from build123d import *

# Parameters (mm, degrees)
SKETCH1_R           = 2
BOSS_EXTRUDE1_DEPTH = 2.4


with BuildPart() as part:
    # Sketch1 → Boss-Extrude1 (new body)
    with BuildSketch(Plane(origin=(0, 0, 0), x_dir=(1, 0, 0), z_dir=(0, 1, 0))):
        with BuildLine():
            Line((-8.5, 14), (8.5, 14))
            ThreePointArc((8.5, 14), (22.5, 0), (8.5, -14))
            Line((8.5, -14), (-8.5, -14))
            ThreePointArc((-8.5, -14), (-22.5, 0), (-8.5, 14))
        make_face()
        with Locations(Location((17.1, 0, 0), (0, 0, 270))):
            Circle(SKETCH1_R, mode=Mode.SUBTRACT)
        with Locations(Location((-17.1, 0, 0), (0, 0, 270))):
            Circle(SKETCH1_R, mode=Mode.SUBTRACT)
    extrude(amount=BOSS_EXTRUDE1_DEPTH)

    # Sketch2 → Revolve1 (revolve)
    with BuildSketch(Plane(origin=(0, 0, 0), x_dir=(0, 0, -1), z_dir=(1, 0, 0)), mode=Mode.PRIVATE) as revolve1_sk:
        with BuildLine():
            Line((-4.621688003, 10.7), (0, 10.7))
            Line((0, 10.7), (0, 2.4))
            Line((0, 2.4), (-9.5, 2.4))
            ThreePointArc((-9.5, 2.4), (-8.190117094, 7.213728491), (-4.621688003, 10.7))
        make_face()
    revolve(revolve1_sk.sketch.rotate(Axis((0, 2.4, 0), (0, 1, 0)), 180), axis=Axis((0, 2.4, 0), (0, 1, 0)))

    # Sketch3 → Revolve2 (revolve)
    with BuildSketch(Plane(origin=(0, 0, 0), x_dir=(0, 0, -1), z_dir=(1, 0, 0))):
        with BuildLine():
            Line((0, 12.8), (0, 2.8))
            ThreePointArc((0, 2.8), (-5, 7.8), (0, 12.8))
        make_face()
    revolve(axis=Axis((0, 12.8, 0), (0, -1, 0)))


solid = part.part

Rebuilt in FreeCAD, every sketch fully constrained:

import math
import FreeCAD as App
import Part
import Sketcher
from FreeCAD import Vector
Q = App.Units.Quantity

doc = App.newDocument("Part")
body = doc.addObject("PartDesign::Body", "Body")

# Sketch on XZ plane
sketch1 = body.newObject("Sketcher::SketchObject", "Sketch")
sketch1.AttachmentSupport = (doc.getObject("XZ_Plane"), [""])
sketch1.MapMode = "FlatFace"
sketch1.addGeometry([
    Part.LineSegment(Vector(8.5, -14, 0), Vector(-8.5, -14, 0)),  # 0
    Part.ArcOfCircle(Part.Circle(Vector(-8.5, 0, 0), Vector(0, 0, 1), 14), math.radians(90), math.radians(270)),  # 1
    Part.LineSegment(Vector(-8.5, 14, 0), Vector(8.5, 14, 0)),  # 2
    Part.ArcOfCircle(Part.Circle(Vector(8.5, 0, 0), Vector(0, 0, 1), 14), math.radians(-90), math.radians(90)),  # 3
    Part.Circle(Vector(17.1, 0, 0), Vector(0, 0, 1), 2),  # 4
    Part.Circle(Vector(-17.1, 0, 0), Vector(0, 0, 1), 2),  # 5
], False)
sketch1.addConstraint([
    Sketcher.Constraint("Tangent", 0, 2, 1, 2),
    Sketcher.Constraint("Tangent", 1, 1, 2, 1),
    Sketcher.Constraint("Tangent", 2, 2, 3, 2),
    Sketcher.Constraint("Tangent", 3, 1, 0, 1),
    Sketcher.Constraint("Horizontal", 0),
    Sketcher.Constraint("Horizontal", 2),
    Sketcher.Constraint("Equal", 4, 5),
    Sketcher.Constraint("Symmetric", 1, 3, 3, 3, -1, 1),
    Sketcher.Constraint("Symmetric", 4, 3, 5, 3, -1, 1),
    Sketcher.Constraint("PointOnObject", 4, 3, -1),
    Sketcher.Constraint("Diameter", 4, Q("4 mm")),
    Sketcher.Constraint("Radius", 1, Q("14 mm")),
    Sketcher.Constraint("DistanceX", 0, 2, 0, 1, Q("17 mm")),
    Sketcher.Constraint("DistanceX", -1, 1, 4, 3, Q("17.1 mm")),
])
pad1 = body.newObject("PartDesign::Pad", "Pad")
pad1.Profile = sketch1
pad1.Length = 2.4
pad1.Reversed = True

# Sketch on YZ plane
sketch2 = body.newObject("Sketcher::SketchObject", "Sketch001")
sketch2.AttachmentSupport = (doc.getObject("YZ_Plane"), [""])
sketch2.MapMode = "FlatFace"
sketch2.addGeometry([
    Part.LineSegment(Vector(10.7, 0, 0), Vector(10.7, 4.621688, 0)),
    Part.ArcOfCircle(Part.Circle(Vector(2.4, 0, 0), Vector(0, 0, 1), 9.5), math.radians(29.110367), math.radians(90)),
    Part.LineSegment(Vector(2.4, 9.5, 0), Vector(2.4, 0, 0)),
    Part.LineSegment(Vector(2.4, 0, 0), Vector(10.7, 0, 0)),
], False)
sketch2.addConstraint([
    Sketcher.Constraint("Coincident", 0, 2, 1, 1),
    Sketcher.Constraint("Coincident", 1, 2, 2, 1),
    Sketcher.Constraint("Coincident", 2, 2, 3, 1),
    Sketcher.Constraint("Coincident", 3, 2, 0, 1),
    Sketcher.Constraint("Vertical", 0),
    Sketcher.Constraint("Vertical", 2),
    Sketcher.Constraint("Horizontal", 3),
    Sketcher.Constraint("Coincident", 2, 2, 1, 3),
    Sketcher.Constraint("PointOnObject", 1, 3, -1),
    Sketcher.Constraint("Radius", 1, Q("9.5 mm")),
    Sketcher.Constraint("DistanceX", 3, 1, 3, 2, Q("8.3 mm")),
    Sketcher.Constraint("DistanceX", -1, 1, 1, 3, Q("2.4 mm")),
])
revolution = body.newObject("PartDesign::Revolution", "Revolution")
revolution.Profile = sketch2
revolution.ReferenceAxis = (sketch2, ["H_Axis"])
revolution.Angle = 360

# Sketch on YZ plane
sketch3 = body.newObject("Sketcher::SketchObject", "Sketch002")
sketch3.AttachmentSupport = (doc.getObject("YZ_Plane"), [""])
sketch3.MapMode = "FlatFace"
sketch3.addGeometry([
    Part.LineSegment(Vector(2.8, 0, 0), Vector(12.8, 0, 0)),
    Part.ArcOfCircle(Part.Circle(Vector(7.8, 0, 0), Vector(0, 0, 1), 5), math.radians(0), math.radians(180)),
], False)
sketch3.addConstraint([
    Sketcher.Constraint("Coincident", 0, 1, 1, 2),
    Sketcher.Constraint("Coincident", 1, 1, 0, 2),
    Sketcher.Constraint("Horizontal", 0),
    Sketcher.Constraint("PointOnObject", 1, 3, -1),
    Sketcher.Constraint("PointOnObject", 0, 1, -1),
    Sketcher.Constraint("Radius", 1, Q("5 mm")),
    Sketcher.Constraint("DistanceX", -1, 1, 1, 3, Q("7.8 mm")),
])
revolution2 = body.newObject("PartDesign::Revolution", "Revolution001")
revolution2.Profile = sketch3
revolution2.ReferenceAxis = (sketch3, ["H_Axis"])
revolution2.Angle = 360

doc.recompute()
